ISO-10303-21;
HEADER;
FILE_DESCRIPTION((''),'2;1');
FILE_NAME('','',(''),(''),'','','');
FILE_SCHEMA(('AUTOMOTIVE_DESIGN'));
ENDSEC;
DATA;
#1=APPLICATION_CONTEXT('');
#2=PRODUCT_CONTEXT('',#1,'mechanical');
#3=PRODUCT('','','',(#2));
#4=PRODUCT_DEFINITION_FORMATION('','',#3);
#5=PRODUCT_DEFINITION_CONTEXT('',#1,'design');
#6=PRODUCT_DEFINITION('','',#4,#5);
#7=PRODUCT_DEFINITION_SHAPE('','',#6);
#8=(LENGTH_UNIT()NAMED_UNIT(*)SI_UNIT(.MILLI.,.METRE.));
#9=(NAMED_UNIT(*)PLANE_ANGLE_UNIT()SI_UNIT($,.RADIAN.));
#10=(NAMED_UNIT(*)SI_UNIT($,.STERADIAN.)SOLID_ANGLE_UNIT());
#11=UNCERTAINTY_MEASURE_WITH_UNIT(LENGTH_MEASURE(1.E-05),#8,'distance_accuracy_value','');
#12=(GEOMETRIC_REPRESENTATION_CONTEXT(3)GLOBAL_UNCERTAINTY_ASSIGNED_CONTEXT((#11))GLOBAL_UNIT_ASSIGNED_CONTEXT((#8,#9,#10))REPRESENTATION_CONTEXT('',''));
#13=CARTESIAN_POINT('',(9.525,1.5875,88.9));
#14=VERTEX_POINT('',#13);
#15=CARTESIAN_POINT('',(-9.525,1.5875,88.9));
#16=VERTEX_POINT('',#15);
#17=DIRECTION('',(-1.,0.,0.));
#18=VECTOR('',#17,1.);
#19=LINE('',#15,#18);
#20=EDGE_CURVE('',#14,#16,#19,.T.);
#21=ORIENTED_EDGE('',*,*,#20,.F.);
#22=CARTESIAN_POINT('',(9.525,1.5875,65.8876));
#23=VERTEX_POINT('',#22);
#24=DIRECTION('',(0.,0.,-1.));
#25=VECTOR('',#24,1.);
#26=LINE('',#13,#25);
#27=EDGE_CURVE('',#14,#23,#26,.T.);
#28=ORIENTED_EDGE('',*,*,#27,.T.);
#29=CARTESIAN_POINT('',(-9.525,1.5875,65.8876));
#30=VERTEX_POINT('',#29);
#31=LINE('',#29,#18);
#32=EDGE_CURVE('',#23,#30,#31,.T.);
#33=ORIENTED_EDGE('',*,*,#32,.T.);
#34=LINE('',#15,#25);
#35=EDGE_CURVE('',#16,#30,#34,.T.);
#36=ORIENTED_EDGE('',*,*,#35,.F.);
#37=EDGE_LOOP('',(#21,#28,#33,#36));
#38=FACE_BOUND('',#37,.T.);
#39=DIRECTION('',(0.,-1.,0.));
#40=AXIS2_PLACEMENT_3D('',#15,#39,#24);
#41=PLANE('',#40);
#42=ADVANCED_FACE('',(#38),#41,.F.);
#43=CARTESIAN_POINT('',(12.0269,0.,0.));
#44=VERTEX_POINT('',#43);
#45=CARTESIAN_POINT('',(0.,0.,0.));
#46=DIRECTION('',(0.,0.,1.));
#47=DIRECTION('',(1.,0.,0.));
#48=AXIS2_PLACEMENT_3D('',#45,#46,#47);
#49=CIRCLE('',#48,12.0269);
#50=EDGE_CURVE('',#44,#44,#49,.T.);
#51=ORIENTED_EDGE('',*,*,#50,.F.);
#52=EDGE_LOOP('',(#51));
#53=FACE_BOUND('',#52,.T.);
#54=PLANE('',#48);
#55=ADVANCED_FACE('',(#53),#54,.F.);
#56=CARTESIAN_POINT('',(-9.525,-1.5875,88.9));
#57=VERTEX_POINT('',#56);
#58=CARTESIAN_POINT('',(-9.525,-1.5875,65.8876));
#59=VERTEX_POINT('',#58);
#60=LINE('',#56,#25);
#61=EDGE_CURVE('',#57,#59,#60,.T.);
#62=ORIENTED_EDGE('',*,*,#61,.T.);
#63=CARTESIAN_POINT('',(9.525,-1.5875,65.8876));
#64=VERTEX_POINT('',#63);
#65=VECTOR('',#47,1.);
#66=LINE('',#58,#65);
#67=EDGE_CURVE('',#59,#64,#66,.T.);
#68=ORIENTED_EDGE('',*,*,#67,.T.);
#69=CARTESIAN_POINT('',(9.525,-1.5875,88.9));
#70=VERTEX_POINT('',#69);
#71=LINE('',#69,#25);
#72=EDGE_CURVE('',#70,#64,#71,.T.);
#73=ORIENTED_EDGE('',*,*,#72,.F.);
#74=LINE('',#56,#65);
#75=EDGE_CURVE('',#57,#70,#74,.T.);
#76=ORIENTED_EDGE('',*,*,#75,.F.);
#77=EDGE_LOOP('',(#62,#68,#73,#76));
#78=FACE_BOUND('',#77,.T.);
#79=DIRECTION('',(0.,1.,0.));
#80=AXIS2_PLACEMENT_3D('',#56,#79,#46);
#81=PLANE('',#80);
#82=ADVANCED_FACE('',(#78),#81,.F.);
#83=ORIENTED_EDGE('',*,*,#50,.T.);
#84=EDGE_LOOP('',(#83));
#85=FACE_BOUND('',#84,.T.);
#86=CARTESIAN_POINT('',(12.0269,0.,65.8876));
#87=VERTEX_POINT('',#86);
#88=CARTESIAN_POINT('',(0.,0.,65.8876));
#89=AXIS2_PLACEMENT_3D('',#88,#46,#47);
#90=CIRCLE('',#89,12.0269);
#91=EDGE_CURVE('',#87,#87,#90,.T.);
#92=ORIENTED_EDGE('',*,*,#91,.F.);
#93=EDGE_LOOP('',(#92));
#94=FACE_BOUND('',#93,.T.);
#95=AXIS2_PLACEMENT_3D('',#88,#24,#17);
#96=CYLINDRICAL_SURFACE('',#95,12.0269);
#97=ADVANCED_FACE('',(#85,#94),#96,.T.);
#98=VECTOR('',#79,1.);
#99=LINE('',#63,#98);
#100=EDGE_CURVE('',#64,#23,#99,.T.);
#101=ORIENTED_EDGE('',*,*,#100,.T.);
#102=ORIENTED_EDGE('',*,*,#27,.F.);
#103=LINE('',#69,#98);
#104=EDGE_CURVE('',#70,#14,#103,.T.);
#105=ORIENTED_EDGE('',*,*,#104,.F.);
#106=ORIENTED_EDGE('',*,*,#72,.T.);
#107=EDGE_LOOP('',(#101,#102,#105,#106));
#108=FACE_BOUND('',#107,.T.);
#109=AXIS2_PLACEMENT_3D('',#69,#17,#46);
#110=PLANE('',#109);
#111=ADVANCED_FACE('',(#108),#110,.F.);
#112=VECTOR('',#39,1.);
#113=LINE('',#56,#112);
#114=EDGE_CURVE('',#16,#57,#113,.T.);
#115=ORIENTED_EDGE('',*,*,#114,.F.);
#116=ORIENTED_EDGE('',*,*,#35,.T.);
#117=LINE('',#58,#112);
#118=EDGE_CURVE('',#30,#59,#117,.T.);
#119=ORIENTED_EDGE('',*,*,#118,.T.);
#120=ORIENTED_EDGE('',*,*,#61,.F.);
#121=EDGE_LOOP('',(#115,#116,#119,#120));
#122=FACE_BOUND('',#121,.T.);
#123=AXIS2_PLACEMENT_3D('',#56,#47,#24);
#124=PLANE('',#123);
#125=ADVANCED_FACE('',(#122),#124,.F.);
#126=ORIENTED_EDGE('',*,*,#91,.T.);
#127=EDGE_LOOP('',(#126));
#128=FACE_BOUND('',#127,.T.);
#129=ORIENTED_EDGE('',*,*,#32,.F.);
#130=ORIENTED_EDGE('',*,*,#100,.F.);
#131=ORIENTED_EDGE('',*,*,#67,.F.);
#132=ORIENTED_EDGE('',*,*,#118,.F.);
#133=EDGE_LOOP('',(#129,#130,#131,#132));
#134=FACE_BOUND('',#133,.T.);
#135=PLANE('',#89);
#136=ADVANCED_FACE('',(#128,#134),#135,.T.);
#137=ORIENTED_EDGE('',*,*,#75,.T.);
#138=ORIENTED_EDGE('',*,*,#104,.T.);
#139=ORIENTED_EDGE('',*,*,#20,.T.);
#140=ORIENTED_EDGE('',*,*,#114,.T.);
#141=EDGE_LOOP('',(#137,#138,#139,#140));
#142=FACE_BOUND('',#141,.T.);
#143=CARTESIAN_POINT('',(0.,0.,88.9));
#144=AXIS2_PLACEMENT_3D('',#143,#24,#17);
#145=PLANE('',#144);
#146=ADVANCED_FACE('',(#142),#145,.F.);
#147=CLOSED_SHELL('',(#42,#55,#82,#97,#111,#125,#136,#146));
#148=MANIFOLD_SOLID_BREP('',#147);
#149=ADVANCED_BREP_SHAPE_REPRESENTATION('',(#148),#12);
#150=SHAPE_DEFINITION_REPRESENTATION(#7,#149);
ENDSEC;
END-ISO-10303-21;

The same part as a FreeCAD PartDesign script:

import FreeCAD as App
import Part
import Sketcher

V = App.Vector
Q = App.Units.Quantity

doc = App.newDocument("Part")
params = doc.addObject("Spreadsheet::Sheet", "Params")
for row, (alias, value) in enumerate([
    ("sketch1_diameter", "0.947 in"),
    ("pad1_length", "2.594 in"),
    ("sketch2_width", "0.75 in"),
    ("sketch2_height", "0.125 in"),
    ("pad2_length", "0.906 in"),
], start=1):
    params.set(f"A{row}", alias)
    params.set(f"B{row}", "=" + value)
    params.setAlias(f"B{row}", alias)

body = doc.addObject("PartDesign::Body", "Body")

# Sketch on XY plane
sketch1 = body.newObject("Sketcher::SketchObject", "Sketch")
sketch1.AttachmentSupport = (doc.getObject("XY_Plane"), [""])
sketch1.MapMode = "FlatFace"
sketch1.addGeometry(Part.Circle(V(0, 0, 0), V(0, 0, 1), 12), False)
sketch1.addConstraint([
    Sketcher.Constraint("Coincident", 0, 3, -1, 1),
    Sketcher.Constraint("Diameter", 0, Q("0.947 in")),
])
sketch1.setExpression("Constraints[1]", "Params.sketch1_diameter")
pad1 = body.newObject("PartDesign::Pad", "Pad")
pad1.Profile = sketch1
pad1.setExpression("Length", "Params.pad1_length")

# Sketch on XY plane
sketch2 = body.newObject("Sketcher::SketchObject", "Sketch001")
sketch2.AttachmentSupport = (doc.getObject("XY_Plane"), [""])
sketch2.MapMode = "FlatFace"
sketch2.AttachmentOffset = App.Placement(V(0, 0, 2.594 * 25.4), App.Rotation())
sketch2.addGeometry([
    Part.LineSegment(V(-9.5, 1.6, 0), V(-9.5, -1.6, 0)),
    Part.LineSegment(V(-9.5, -1.6, 0), V(9.5, -1.6, 0)),
    Part.LineSegment(V(9.5, -1.6, 0), V(9.5, 1.6, 0)),
    Part.LineSegment(V(9.5, 1.6, 0), V(-9.5, 1.6, 0)),
], False)
sketch2.addConstraint([
    Sketcher.Constraint("Coincident", 0, 2, 1, 1),
    Sketcher.Constraint("Coincident", 1, 2, 2, 1),
    Sketcher.Constraint("Coincident", 2, 2, 3, 1),
    Sketcher.Constraint("Coincident", 3, 2, 0, 1),
    Sketcher.Constraint("Vertical", 0),
    Sketcher.Constraint("Horizontal", 1),
    Sketcher.Constraint("Vertical", 2),
    Sketcher.Constraint("Horizontal", 3),
    Sketcher.Constraint("Symmetric", 0, 2, 2, 2, -1, 1),
    Sketcher.Constraint("DistanceX", 1, 1, 1, 2, Q("0.75 in")),
    Sketcher.Constraint("DistanceY", 0, 2, 0, 1, Q("0.125 in")),
])
sketch2.setExpression("Constraints[9]", "Params.sketch2_width")
sketch2.setExpression("Constraints[10]", "Params.sketch2_height")
pad2 = body.newObject("PartDesign::Pad", "Pad001")
pad2.Profile = sketch2
pad2.setExpression("Length", "Params.pad2_length")

doc.recompute()
